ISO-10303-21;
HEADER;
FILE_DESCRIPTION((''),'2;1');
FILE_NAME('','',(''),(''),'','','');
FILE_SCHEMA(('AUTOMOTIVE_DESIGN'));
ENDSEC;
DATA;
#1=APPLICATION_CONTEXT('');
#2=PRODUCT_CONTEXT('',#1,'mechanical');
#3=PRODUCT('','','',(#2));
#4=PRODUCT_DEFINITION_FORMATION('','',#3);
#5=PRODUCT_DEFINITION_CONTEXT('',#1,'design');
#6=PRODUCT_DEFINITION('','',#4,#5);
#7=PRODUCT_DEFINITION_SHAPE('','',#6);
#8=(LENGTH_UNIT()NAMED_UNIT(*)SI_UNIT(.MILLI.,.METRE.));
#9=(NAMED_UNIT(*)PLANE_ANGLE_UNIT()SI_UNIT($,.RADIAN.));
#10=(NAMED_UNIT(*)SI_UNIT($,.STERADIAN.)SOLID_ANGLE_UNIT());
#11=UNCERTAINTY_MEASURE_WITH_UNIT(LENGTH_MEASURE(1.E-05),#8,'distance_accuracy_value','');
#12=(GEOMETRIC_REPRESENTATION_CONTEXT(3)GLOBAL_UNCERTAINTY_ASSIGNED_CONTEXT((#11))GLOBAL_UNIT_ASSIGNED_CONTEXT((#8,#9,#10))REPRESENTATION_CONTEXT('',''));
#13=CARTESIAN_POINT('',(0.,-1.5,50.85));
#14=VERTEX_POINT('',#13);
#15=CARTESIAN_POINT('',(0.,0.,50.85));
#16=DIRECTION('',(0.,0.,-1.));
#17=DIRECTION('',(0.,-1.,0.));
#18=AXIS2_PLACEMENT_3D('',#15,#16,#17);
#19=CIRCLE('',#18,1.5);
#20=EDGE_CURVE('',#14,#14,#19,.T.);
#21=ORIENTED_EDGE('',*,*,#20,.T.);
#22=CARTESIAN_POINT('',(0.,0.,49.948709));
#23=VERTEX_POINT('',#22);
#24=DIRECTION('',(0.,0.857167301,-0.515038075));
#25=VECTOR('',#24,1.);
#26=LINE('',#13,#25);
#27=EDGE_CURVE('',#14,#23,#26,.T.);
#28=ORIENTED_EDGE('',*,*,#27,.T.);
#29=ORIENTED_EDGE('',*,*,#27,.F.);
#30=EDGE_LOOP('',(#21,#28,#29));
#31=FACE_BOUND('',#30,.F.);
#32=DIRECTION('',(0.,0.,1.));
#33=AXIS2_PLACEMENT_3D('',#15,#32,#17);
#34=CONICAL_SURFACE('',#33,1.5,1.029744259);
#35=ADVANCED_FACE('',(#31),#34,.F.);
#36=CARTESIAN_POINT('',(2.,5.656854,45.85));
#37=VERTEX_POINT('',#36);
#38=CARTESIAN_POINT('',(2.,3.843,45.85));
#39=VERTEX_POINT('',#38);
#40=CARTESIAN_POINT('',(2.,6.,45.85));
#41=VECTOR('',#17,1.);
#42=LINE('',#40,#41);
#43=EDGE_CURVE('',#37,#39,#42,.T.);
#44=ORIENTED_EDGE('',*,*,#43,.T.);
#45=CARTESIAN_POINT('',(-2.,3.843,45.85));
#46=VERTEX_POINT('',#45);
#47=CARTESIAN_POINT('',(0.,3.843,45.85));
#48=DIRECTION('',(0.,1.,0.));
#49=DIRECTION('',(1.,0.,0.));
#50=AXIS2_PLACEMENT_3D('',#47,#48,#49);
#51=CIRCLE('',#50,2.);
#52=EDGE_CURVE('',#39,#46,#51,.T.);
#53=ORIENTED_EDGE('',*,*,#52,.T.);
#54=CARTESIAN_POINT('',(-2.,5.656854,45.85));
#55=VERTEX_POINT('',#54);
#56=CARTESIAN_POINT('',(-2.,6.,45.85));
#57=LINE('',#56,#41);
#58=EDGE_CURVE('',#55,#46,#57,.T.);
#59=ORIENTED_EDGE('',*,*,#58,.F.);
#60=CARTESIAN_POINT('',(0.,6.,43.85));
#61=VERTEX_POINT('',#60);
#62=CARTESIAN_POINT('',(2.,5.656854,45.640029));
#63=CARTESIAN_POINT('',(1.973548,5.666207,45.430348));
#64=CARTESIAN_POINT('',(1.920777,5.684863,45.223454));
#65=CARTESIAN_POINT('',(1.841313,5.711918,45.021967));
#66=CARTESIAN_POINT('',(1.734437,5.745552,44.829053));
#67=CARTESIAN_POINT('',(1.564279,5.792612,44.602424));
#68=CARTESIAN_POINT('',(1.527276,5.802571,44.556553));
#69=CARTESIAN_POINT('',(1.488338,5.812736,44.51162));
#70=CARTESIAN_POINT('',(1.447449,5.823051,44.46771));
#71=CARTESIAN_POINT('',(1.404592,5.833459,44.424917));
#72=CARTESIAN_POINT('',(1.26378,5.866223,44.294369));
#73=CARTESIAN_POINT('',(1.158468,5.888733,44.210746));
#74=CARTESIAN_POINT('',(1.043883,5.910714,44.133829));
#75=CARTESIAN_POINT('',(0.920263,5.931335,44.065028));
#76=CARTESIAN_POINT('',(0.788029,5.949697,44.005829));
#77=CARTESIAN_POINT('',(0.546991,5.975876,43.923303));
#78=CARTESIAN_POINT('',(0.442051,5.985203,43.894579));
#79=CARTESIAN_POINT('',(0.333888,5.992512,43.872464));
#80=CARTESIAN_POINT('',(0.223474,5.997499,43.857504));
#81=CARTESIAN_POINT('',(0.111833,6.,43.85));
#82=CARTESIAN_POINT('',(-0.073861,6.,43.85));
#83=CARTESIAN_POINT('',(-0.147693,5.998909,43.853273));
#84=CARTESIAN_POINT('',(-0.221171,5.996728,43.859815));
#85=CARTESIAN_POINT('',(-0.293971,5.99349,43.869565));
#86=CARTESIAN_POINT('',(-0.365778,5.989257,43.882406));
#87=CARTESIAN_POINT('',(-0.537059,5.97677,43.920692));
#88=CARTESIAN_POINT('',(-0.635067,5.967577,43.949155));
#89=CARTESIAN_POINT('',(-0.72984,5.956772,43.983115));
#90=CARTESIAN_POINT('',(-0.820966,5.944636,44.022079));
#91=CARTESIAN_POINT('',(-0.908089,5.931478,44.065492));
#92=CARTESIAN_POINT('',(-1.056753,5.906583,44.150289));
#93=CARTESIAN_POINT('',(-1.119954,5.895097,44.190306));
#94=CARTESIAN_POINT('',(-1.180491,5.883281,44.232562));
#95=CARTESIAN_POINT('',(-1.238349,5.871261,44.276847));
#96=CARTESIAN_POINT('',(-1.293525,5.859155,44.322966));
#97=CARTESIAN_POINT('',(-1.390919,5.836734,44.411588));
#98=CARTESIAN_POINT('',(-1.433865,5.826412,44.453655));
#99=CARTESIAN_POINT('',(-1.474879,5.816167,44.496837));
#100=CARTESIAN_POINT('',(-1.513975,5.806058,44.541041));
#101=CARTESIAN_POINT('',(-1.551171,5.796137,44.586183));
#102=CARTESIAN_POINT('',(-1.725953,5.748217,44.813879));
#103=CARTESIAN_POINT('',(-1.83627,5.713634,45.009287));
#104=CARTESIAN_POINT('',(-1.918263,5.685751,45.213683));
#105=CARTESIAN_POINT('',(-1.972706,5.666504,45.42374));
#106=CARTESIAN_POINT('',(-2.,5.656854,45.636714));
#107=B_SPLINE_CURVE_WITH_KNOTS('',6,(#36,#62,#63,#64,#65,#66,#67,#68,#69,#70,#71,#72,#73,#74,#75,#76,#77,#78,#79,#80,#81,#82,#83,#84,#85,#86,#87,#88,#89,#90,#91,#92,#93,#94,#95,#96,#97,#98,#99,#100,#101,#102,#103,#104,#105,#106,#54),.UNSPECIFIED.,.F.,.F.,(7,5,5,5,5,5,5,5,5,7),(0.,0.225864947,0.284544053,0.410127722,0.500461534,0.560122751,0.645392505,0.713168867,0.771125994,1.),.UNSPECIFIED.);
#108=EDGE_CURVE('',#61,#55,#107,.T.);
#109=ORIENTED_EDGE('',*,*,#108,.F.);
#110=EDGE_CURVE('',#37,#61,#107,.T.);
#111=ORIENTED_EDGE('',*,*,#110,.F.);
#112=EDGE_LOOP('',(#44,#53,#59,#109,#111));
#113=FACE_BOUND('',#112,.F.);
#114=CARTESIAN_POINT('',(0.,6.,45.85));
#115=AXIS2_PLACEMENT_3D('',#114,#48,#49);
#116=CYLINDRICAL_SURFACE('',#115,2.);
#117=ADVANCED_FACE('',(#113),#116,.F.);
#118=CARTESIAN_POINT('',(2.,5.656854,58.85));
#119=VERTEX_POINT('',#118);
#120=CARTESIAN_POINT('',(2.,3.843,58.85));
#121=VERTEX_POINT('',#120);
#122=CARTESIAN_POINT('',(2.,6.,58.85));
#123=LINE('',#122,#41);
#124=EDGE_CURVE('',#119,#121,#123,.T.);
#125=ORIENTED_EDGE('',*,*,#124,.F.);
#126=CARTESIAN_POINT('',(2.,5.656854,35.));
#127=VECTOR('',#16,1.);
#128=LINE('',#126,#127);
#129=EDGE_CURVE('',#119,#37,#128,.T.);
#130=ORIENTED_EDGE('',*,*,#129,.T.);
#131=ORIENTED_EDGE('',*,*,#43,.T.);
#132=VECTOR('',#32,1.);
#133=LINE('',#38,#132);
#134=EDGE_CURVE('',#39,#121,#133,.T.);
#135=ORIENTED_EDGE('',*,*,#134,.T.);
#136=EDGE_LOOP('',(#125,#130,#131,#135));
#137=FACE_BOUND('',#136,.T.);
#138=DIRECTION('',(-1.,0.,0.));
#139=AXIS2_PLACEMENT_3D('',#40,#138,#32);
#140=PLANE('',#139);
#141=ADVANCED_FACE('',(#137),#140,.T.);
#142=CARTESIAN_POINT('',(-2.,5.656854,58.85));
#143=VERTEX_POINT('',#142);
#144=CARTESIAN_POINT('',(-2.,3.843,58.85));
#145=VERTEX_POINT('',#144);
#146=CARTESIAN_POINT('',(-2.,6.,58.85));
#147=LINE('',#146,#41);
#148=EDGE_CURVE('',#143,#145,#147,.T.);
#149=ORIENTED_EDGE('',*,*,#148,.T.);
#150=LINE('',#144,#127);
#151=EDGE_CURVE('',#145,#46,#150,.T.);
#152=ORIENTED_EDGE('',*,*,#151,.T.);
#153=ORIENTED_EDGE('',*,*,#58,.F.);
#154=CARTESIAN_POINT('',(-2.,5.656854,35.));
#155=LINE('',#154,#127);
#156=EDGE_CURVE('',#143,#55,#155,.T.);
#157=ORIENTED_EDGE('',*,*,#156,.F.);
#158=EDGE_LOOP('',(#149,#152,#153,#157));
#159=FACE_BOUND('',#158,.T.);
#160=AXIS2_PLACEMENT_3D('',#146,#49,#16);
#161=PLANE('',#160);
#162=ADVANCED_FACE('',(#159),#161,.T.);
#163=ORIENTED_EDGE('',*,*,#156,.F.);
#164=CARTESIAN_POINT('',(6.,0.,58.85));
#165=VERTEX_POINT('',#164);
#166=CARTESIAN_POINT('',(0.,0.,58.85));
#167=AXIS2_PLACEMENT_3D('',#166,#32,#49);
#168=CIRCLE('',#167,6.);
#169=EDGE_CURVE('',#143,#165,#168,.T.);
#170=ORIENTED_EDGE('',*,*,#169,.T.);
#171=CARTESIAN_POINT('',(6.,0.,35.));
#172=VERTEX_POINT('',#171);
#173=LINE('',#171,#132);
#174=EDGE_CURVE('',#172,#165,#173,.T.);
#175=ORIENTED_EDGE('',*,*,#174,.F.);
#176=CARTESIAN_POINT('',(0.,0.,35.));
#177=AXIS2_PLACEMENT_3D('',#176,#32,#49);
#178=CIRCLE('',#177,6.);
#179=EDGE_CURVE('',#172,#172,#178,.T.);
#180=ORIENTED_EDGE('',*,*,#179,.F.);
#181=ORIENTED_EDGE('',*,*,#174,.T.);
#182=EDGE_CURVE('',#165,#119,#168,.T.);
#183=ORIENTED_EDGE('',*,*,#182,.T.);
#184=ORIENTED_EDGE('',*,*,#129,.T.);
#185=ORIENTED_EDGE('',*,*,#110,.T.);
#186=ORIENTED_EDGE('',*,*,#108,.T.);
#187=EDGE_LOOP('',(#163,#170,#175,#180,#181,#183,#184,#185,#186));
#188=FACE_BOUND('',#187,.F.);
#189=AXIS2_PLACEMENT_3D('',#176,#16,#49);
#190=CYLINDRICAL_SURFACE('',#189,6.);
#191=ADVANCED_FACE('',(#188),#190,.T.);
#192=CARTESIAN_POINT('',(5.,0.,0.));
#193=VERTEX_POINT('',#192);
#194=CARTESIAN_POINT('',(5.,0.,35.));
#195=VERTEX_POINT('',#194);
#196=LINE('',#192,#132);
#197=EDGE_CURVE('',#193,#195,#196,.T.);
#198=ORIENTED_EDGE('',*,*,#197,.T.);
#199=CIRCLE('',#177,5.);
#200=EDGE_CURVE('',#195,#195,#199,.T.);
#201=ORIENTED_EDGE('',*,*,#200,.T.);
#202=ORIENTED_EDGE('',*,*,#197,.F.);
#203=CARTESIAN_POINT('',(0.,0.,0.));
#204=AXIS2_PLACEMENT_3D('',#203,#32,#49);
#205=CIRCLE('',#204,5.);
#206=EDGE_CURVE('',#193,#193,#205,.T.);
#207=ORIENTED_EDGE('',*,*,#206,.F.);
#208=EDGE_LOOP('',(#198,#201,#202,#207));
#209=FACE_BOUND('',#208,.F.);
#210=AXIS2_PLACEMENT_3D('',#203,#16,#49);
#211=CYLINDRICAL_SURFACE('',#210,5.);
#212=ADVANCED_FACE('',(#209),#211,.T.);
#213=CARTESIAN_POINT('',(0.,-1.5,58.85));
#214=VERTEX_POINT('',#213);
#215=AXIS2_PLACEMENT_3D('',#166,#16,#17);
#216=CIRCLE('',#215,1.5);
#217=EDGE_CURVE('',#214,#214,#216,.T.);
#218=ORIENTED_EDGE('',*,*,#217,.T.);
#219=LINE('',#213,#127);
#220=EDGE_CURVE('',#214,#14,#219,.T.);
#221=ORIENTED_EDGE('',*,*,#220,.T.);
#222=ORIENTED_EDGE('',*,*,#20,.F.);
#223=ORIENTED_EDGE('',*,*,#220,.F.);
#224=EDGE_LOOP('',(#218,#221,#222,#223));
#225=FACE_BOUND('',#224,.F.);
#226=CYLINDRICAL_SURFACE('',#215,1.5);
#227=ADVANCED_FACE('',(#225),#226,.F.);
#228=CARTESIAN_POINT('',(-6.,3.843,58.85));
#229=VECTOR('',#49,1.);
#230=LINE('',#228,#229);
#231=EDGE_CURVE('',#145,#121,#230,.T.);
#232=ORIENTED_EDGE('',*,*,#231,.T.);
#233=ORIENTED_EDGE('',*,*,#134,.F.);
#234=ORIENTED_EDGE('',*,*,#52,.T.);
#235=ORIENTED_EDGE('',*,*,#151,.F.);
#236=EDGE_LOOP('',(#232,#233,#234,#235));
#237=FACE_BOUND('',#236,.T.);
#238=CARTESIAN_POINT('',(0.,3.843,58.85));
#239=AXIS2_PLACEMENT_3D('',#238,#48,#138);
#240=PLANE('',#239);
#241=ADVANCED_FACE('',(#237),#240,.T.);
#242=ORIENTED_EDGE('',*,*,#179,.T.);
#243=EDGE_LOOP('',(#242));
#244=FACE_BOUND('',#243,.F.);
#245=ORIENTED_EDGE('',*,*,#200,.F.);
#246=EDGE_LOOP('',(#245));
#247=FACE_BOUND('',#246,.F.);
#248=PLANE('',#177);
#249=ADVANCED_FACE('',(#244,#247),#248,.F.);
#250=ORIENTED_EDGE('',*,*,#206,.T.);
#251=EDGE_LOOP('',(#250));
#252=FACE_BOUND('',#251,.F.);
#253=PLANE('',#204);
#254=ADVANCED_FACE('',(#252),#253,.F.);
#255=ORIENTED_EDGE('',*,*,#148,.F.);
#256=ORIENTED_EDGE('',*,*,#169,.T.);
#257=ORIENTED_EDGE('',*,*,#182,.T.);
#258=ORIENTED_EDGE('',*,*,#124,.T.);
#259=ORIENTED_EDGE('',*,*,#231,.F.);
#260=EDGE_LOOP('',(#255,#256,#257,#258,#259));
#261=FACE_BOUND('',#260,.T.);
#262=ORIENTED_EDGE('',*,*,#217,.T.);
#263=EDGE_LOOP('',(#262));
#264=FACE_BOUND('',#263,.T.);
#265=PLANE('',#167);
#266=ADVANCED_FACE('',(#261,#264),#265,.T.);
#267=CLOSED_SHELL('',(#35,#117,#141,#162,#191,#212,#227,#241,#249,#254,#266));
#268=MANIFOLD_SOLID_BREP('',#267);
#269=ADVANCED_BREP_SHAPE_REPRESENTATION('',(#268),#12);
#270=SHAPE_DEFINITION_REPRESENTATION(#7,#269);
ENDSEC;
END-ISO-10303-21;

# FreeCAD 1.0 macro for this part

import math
import FreeCAD as App
import Part
import Sketcher
from FreeCAD import Vector
Q = App.Units.Quantity

doc = App.newDocument("Part")
body = doc.addObject("PartDesign::Body", "Body")

# Sketch on XY plane
sketch1 = body.newObject("Sketcher::SketchObject", "Sketch")
sketch1.AttachmentSupport = (doc.getObject("XY_Plane"), [""])
sketch1.MapMode = "FlatFace"
sketch1.addGeometry(Part.Circle(Vector(0, 0, 0), Vector(0, 0, 1), 5), False)
sketch1.addConstraint(Sketcher.Constraint("Coincident", 0, 3, -1, 1))
sketch1.addConstraint(Sketcher.Constraint("Diameter", 0, Q("10 mm")))
pad1 = body.newObject("PartDesign::Pad", "Pad")
pad1.Profile = sketch1
pad1.Length = 35

# Sketch on XY plane
sketch2 = body.newObject("Sketcher::SketchObject", "Sketch001")
sketch2.AttachmentSupport = (doc.getObject("XY_Plane"), [""])
sketch2.MapMode = "FlatFace"
sketch2.AttachmentOffset = App.Placement(Vector(0, 0, 35), App.Rotation())
sketch2.addGeometry(Part.Circle(Vector(0, 0, 0), Vector(0, 0, 1), 6), False)
sketch2.addConstraint(Sketcher.Constraint("Coincident", 0, 3, -1, 1))
sketch2.addConstraint(Sketcher.Constraint("Diameter", 0, Q("12 mm")))
pad2 = body.newObject("PartDesign::Pad", "Pad001")
pad2.Profile = sketch2
pad2.Length = 23.85

# Sketch on XZ plane
sketch3 = body.newObject("Sketcher::SketchObject", "Sketch002")
sketch3.AttachmentSupport = (doc.getObject("XZ_Plane"), [""])
sketch3.MapMode = "FlatFace"
sketch3.AttachmentOffset = App.Placement(Vector(0, 0, -6), App.Rotation())
sketch3.addGeometry(Part.LineSegment(Vector(-2, 45.9, 0), Vector(-2, 58.9, 0)), False)
sketch3.addGeometry(Part.LineSegment(Vector(-2, 58.9, 0), Vector(2, 58.9, 0)), False)
sketch3.addGeometry(Part.LineSegment(Vector(2, 58.9, 0), Vector(2, 45.9, 0)), False)
sketch3.addGeometry(Part.ArcOfCircle(Part.Circle(Vector(0, 45.9, 0), Vector(0, 0, 1), 2), math.radians(180), math.radians(360)), False)
sketch3.addConstraint(Sketcher.Constraint("Coincident", 0, 2, 1, 1))
sketch3.addConstraint(Sketcher.Constraint("Coincident", 1, 2, 2, 1))
sketch3.addConstraint(Sketcher.Constraint("Tangent", 2, 2, 3, 2))
sketch3.addConstraint(Sketcher.Constraint("Tangent", 3, 1, 0, 1))
sketch3.addConstraint(Sketcher.Constraint("Vertical", 0))
sketch3.addConstraint(Sketcher.Constraint("Horizontal", 1))
sketch3.addConstraint(Sketcher.Constraint("Vertical", 2))
sketch3.addConstraint(Sketcher.Constraint("PointOnObject", 3, 3, -2))
sketch3.addConstraint(Sketcher.Constraint("Radius", 3, Q("2 mm")))
sketch3.addConstraint(Sketcher.Constraint("DistanceY", 0, 1, 0, 2, Q("13 mm")))
sketch3.addConstraint(Sketcher.Constraint("DistanceY", -1, 1, 3, 3, Q("45.85 mm")))
pocket1 = body.newObject("PartDesign::Pocket", "Pocket")
pocket1.Profile = sketch3
pocket1.Length = 2.157
pocket1.Reversed = True

# Sketch on XY plane
sketch4 = body.newObject("Sketcher::SketchObject", "Sketch003")
sketch4.AttachmentSupport = (doc.getObject("XY_Plane"), [""])
sketch4.MapMode = "FlatFace"
sketch4.AttachmentOffset = App.Placement(Vector(0, 0, 58.85), App.Rotation())
sketch4.addGeometry(Part.Circle(Vector(0, 0, 0), Vector(0, 0, 1), 1.5), False)
sketch4.addConstraint(Sketcher.Constraint("Coincident", 0, 3, -1, 1))
sketch4.addConstraint(Sketcher.Constraint("Diameter", 0, Q("3 mm")))
doc.recompute()
hole = body.newObject("PartDesign::Hole", "Hole")
hole.Profile = sketch4
hole.ThreadType = "None"
hole.Diameter = 3
hole.DepthType = "Dimension"
hole.Depth = 8
hole.DrillPoint = "Angled"
hole.DrillPointAngle = 118

doc.recompute()
